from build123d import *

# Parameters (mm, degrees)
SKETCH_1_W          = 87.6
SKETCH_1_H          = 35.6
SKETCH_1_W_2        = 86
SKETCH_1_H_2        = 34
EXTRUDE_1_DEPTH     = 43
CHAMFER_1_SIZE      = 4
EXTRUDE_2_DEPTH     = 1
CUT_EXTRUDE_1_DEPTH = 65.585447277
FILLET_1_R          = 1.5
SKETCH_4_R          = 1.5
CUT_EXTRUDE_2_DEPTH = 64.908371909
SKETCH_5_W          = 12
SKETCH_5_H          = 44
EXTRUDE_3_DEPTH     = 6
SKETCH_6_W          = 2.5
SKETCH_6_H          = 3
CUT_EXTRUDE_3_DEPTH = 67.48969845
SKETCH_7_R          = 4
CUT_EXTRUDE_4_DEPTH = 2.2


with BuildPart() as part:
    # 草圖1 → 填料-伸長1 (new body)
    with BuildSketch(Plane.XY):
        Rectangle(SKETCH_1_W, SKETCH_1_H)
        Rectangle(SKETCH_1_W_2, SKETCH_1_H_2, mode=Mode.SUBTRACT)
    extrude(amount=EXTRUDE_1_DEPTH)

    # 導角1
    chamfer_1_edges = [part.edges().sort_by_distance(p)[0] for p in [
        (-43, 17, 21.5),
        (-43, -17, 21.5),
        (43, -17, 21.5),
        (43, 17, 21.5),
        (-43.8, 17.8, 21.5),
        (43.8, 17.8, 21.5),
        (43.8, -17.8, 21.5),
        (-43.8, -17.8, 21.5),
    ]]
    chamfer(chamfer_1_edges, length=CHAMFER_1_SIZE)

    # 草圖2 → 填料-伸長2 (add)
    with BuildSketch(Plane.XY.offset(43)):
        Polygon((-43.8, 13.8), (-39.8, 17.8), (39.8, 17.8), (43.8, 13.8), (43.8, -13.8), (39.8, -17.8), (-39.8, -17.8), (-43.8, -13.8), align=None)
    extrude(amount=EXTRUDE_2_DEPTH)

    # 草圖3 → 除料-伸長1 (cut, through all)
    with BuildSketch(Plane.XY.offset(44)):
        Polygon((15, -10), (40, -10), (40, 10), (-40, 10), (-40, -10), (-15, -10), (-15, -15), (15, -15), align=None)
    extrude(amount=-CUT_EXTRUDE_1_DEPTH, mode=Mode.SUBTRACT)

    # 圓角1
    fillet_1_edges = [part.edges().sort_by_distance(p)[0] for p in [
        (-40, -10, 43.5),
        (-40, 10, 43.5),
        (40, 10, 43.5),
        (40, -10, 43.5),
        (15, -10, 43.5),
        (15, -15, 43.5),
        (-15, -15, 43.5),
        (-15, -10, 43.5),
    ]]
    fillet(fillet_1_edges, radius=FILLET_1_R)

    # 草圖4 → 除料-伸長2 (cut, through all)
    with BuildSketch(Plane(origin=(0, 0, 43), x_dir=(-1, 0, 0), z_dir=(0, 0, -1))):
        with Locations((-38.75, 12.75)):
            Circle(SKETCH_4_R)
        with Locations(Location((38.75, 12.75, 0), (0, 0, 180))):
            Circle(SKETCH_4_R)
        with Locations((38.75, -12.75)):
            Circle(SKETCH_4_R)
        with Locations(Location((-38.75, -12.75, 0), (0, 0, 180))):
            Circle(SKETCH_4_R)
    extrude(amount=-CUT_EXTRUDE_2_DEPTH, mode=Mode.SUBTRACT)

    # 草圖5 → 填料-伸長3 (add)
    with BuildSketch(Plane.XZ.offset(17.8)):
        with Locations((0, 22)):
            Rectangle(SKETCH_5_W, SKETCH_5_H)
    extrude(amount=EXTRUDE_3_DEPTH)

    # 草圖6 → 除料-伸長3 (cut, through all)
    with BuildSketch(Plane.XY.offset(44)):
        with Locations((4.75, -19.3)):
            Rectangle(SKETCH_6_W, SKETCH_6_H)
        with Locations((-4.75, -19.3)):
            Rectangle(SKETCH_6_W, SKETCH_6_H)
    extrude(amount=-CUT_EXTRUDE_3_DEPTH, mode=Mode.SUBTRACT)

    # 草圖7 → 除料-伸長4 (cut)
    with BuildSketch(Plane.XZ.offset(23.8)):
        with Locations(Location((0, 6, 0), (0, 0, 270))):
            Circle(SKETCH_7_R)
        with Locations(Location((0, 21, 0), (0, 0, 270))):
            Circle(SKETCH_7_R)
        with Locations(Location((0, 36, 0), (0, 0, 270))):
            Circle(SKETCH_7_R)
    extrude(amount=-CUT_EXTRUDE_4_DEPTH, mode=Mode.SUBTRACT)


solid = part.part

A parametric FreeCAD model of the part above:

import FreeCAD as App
import Part
import Sketcher
from FreeCAD import Vector


def edges_at(feature, points):
    """Names of the edges that pass closest to the given points."""
    edges = feature.Shape.Edges
    near = lambda p: min(range(len(edges)), key=lambda i: edges[i].distToShape(Part.Vertex(*p))[0])
    return sorted({f"Edge{near(p) + 1}" for p in points})

doc = App.newDocument("Part")
body = doc.addObject("PartDesign::Body", "Body")

sketch1 = doc.addObject("Sketcher::SketchObject", "Sketch")
body.addObject(sketch1)
sketch1.AttachmentSupport = (doc.XY_Plane, [""])
sketch1.MapMode = "FlatFace"
sketch1.addGeometry(Part.LineSegment(Vector(-44, 18, 0), Vector(-44, -18, 0)), False)
sketch1.addGeometry(Part.LineSegment(Vector(-44, -18, 0), Vector(44, -18, 0)), False)
sketch1.addGeometry(Part.LineSegment(Vector(44, -18, 0), Vector(44, 18, 0)), False)
sketch1.addGeometry(Part.LineSegment(Vector(44, 18, 0), Vector(-44, 18, 0)), False)
sketch1.addGeometry(Part.LineSegment(Vector(43, -17, 0), Vector(-43, -17, 0)), False)
sketch1.addGeometry(Part.LineSegment(Vector(-43, -17, 0), Vector(-43, 17, 0)), False)
sketch1.addGeometry(Part.LineSegment(Vector(-43, 17, 0), Vector(43, 17, 0)), False)
sketch1.addGeometry(Part.LineSegment(Vector(43, 17, 0), Vector(43, -17, 0)), False)
sketch1.addConstraint(Sketcher.Constraint("Coincident", 0, 2, 1, 1))
sketch1.addConstraint(Sketcher.Constraint("Coincident", 1, 2, 2, 1))
sketch1.addConstraint(Sketcher.Constraint("Coincident", 2, 2, 3, 1))
sketch1.addConstraint(Sketcher.Constraint("Coincident", 3, 2, 0, 1))
sketch1.addConstraint(Sketcher.Constraint("Coincident", 4, 2, 5, 1))
sketch1.addConstraint(Sketcher.Constraint("Coincident", 5, 2, 6, 1))
sketch1.addConstraint(Sketcher.Constraint("Coincident", 6, 2, 7, 1))
sketch1.addConstraint(Sketcher.Constraint("Coincident", 7, 2, 4, 1))
sketch1.addConstraint(Sketcher.Constraint("Vertical", 0))
sketch1.addConstraint(Sketcher.Constraint("Horizontal", 1))
sketch1.addConstraint(Sketcher.Constraint("Vertical", 2))
sketch1.addConstraint(Sketcher.Constraint("Horizontal", 3))
sketch1.addConstraint(Sketcher.Constraint("Horizontal", 4))
sketch1.addConstraint(Sketcher.Constraint("Vertical", 5))
sketch1.addConstraint(Sketcher.Constraint("Horizontal", 6))
sketch1.addConstraint(Sketcher.Constraint("Vertical", 7))
sketch1.addConstraint(Sketcher.Constraint("Symmetric", 0, 2, 2, 2, -1, 1))
sketch1.addConstraint(Sketcher.Constraint("Symmetric", 4, 2, 6, 2, -1, 1))
sketch1.addConstraint(Sketcher.Constraint("DistanceX", 4, 2, 4, 1, 86.0))
sketch1.addConstraint(Sketcher.Constraint("DistanceY", 5, 1, 5, 2, 34.0))
sketch1.addConstraint(Sketcher.Constraint("DistanceX", 1, 1, 1, 2, 87.6))
sketch1.addConstraint(Sketcher.Constraint("DistanceY", 0, 2, 0, 1, 35.6))
pad1 = doc.addObject("PartDesign::Pad", "Pad")
body.addObject(pad1)
pad1.Profile = sketch1
pad1.Length = 43
doc.recompute()

chamfer = doc.addObject("PartDesign::Chamfer", "Chamfer")
body.addObject(chamfer)
chamfer.Base = (pad1, edges_at(pad1, [
    (-43, 17, 21.5),
    (-43, -17, 21.5),
    (43, -17, 21.5),
    (43, 17, 21.5),
    (-43.8, 17.8, 21.5),
    (43.8, 17.8, 21.5),
    (43.8, -17.8, 21.5),
    (-43.8, -17.8, 21.5),
]))
chamfer.Size = 4

sketch2 = doc.addObject("Sketcher::SketchObject", "Sketch001")
body.addObject(sketch2)
sketch2.AttachmentSupport = (doc.XY_Plane, [""])
sketch2.MapMode = "FlatFace"
sketch2.AttachmentOffset = App.Placement(Vector(0, 0, 43), App.Rotation())
sketch2.addGeometry(Part.LineSegment(Vector(-40, 18, 0), Vector(-44, 14, 0)), False)
sketch2.addGeometry(Part.LineSegment(Vector(-44, 14, 0), Vector(-44, -14, 0)), False)
sketch2.addGeometry(Part.LineSegment(Vector(-44, -14, 0), Vector(-40, -18, 0)), False)
sketch2.addGeometry(Part.LineSegment(Vector(-40, -18, 0), Vector(40, -18, 0)), False)
sketch2.addGeometry(Part.LineSegment(Vector(40, -18, 0), Vector(44, -14, 0)), False)
sketch2.addGeometry(Part.LineSegment(Vector(44, -14, 0), Vector(44, 14, 0)), False)
sketch2.addGeometry(Part.LineSegment(Vector(44, 14, 0), Vector(40, 18, 0)), False)
sketch2.addGeometry(Part.LineSegment(Vector(40, 18, 0), Vector(-40, 18, 0)), False)
sketch2.addConstraint(Sketcher.Constraint("Coincident", 0, 2, 1, 1))
sketch2.addConstraint(Sketcher.Constraint("Coincident", 1, 2, 2, 1))
sketch2.addConstraint(Sketcher.Constraint("Coincident", 2, 2, 3, 1))
sketch2.addConstraint(Sketcher.Constraint("Coincident", 3, 2, 4, 1))
sketch2.addConstraint(Sketcher.Constraint("Coincident", 4, 2, 5, 1))
sketch2.addConstraint(Sketcher.Constraint("Coincident", 5, 2, 6, 1))
sketch2.addConstraint(Sketcher.Constraint("Coincident", 6, 2, 7, 1))
sketch2.addConstraint(Sketcher.Constraint("Coincident", 7, 2, 0, 1))
sketch2.addConstraint(Sketcher.Constraint("Vertical", 1))
sketch2.addConstraint(Sketcher.Constraint("Horizontal", 3))
sketch2.addConstraint(Sketcher.Constraint("Vertical", 5))
sketch2.addConstraint(Sketcher.Constraint("Horizontal", 7))
sketch2.addConstraint(Sketcher.Constraint("Symmetric", 0, 2, 4, 2, -1, 1))
sketch2.addConstraint(Sketcher.Constraint("Symmetric", 2, 2, 6, 2, -1, 1))
sketch2.addConstraint(Sketcher.Constraint("Perpendicular", 0, 2))
sketch2.addConstraint(Sketcher.Constraint("Perpendicular", 2, 4))
sketch2.addConstraint(Sketcher.Constraint("Perpendicular", 4, 6))
sketch2.addConstraint(Sketcher.Constraint("Horizontal", 1, 2, 4, 2))
sketch2.addConstraint(Sketcher.Constraint("Vertical", 3, 2, 6, 2))
sketch2.addConstraint(Sketcher.Constraint("DistanceX", 3, 1, 3, 2, 79.6))
sketch2.addConstraint(Sketcher.Constraint("DistanceY", 1, 2, 1, 1, 27.6))
sketch2.addConstraint(Sketcher.Constraint("DistanceX", 1, 2, 2, 2, 4.0))
pad2 = doc.addObject("PartDesign::Pad", "Pad001")
body.addObject(pad2)
pad2.Profile = sketch2
pad2.Length = 1

sketch3 = doc.addObject("Sketcher::SketchObject", "Sketch002")
body.addObject(sketch3)
sketch3.AttachmentSupport = (doc.XY_Plane, [""])
sketch3.MapMode = "FlatFace"
sketch3.AttachmentOffset = App.Placement(Vector(0, 0, 44), App.Rotation())
sketch3.addGeometry(Part.LineSegment(Vector(15, -10, 0), Vector(40, -10, 0)), False)
sketch3.addGeometry(Part.LineSegment(Vector(40, -10, 0), Vector(40, 10, 0)), False)
sketch3.addGeometry(Part.LineSegment(Vector(40, 10, 0), Vector(-40, 10, 0)), False)
sketch3.addGeometry(Part.LineSegment(Vector(-40, 10, 0), Vector(-40, -10, 0)), False)
sketch3.addGeometry(Part.LineSegment(Vector(-40, -10, 0), Vector(-15, -10, 0)), False)
sketch3.addGeometry(Part.LineSegment(Vector(-15, -10, 0), Vector(-15, -15, 0)), False)
sketch3.addGeometry(Part.LineSegment(Vector(-15, -15, 0), Vector(15, -15, 0)), False)
sketch3.addGeometry(Part.LineSegment(Vector(15, -15, 0), Vector(15, -10, 0)), False)
sketch3.addConstraint(Sketcher.Constraint("Coincident", 0, 2, 1, 1))
sketch3.addConstraint(Sketcher.Constraint("Coincident", 1, 2, 2, 1))
sketch3.addConstraint(Sketcher.Constraint("Coincident", 2, 2, 3, 1))
sketch3.addConstraint(Sketcher.Constraint("Coincident", 3, 2, 4, 1))
sketch3.addConstraint(Sketcher.Constraint("Coincident", 4, 2, 5, 1))
sketch3.addConstraint(Sketcher.Constraint("Coincident", 5, 2, 6, 1))
sketch3.addConstraint(Sketcher.Constraint("Coincident", 6, 2, 7, 1))
sketch3.addConstraint(Sketcher.Constraint("Coincident", 7, 2, 0, 1))
sketch3.addConstraint(Sketcher.Constraint("Horizontal", 0))
sketch3.addConstraint(Sketcher.Constraint("Vertical", 1))
sketch3.addConstraint(Sketcher.Constraint("Horizontal", 2))
sketch3.addConstraint(Sketcher.Constraint("Vertical", 3))
sketch3.addConstraint(Sketcher.Constraint("Horizontal", 4))
sketch3.addConstraint(Sketcher.Constraint("Vertical", 5))
sketch3.addConstraint(Sketcher.Constraint("Horizontal", 6))
sketch3.addConstraint(Sketcher.Constraint("Vertical", 7))
sketch3.addConstraint(Sketcher.Constraint("Symmetric", 0, 2, 2, 2, -1, 1))
sketch3.addConstraint(Sketcher.Constraint("Symmetric", 4, 2, 7, 2, -2))
sketch3.addConstraint(Sketcher.Constraint("DistanceX", 0, 1, 0, 2, 25.0))
sketch3.addConstraint(Sketcher.Constraint("DistanceX", 2, 2, 2, 1, 80.0))
sketch3.addConstraint(Sketcher.Constraint("DistanceY", 1, 1, 1, 2, 20.0))
sketch3.addConstraint(Sketcher.Constraint("DistanceY", 5, 2, 5, 1, 5.0))
pocket1 = doc.addObject("PartDesign::Pocket", "Pocket")
body.addObject(pocket1)
pocket1.Profile = sketch3
pocket1.Type = "ThroughAll"
doc.recompute()

fillet = doc.addObject("PartDesign::Fillet", "Fillet")
body.addObject(fillet)
fillet.Base = (pocket1, edges_at(pocket1, [
    (-40, -10, 43.5),
    (-40, 10, 43.5),
    (40, 10, 43.5),
    (40, -10, 43.5),
    (15, -10, 43.5),
    (15, -15, 43.5),
    (-15, -15, 43.5),
    (-15, -10, 43.5),
]))
fillet.Radius = 1.5

sketch4 = doc.addObject("Sketcher::SketchObject", "Sketch003")
body.addObject(sketch4)
sketch4.AttachmentSupport = (doc.XY_Plane, [""])
sketch4.MapMode = "FlatFace"
sketch4.AttachmentOffset = App.Placement(Vector(0, 0, 43), App.Rotation())
sketch4.addGeometry(Part.Circle(Vector(38.8, 12.8, 0), Vector(0, 0, 1), 1.5), False)
sketch4.addGeometry(Part.Circle(Vector(-38.8, 12.8, 0), Vector(0, 0, 1), 1.5), False)
sketch4.addGeometry(Part.Circle(Vector(-38.8, -12.8, 0), Vector(0, 0, 1), 1.5), False)
sketch4.addGeometry(Part.Circle(Vector(38.8, -12.8, 0), Vector(0, 0, 1), 1.5), False)
sketch4.addConstraint(Sketcher.Constraint("Equal", 0, 1))
sketch4.addConstraint(Sketcher.Constraint("Equal", 1, 2))
sketch4.addConstraint(Sketcher.Constraint("Equal", 2, 3))
sketch4.addConstraint(Sketcher.Constraint("Symmetric", 0, 3, 2, 3, -1, 1))
sketch4.addConstraint(Sketcher.Constraint("Symmetric", 1, 3, 3, 3, -1, 1))
sketch4.addConstraint(Sketcher.Constraint("Symmetric", 0, 3, 1, 3, -2))
sketch4.addConstraint(Sketcher.Constraint("Diameter", 0, 3.0))
sketch4.addConstraint(Sketcher.Constraint("DistanceX", 1, 3, 0, 3, 77.5))
sketch4.addConstraint(Sketcher.Constraint("DistanceY", 2, 3, 1, 3, 25.5))
pocket2 = doc.addObject("PartDesign::Pocket", "Pocket001")
body.addObject(pocket2)
pocket2.Profile = sketch4
pocket2.Type = "ThroughAll"
pocket2.Reversed = True

sketch5 = doc.addObject("Sketcher::SketchObject", "Sketch004")
body.addObject(sketch5)
sketch5.AttachmentSupport = (doc.XZ_Plane, [""])
sketch5.MapMode = "FlatFace"
sketch5.AttachmentOffset = App.Placement(Vector(0, 0, 17.8), App.Rotation())
sketch5.addGeometry(Part.LineSegment(Vector(-6, 44, 0), Vector(-6, 0, 0)), False)
sketch5.addGeometry(Part.LineSegment(Vector(-6, 0, 0), Vector(6, 0, 0)), False)
sketch5.addGeometry(Part.LineSegment(Vector(6, 0, 0), Vector(6, 44, 0)), False)
sketch5.addGeometry(Part.LineSegment(Vector(6, 44, 0), Vector(-6, 44, 0)), False)
sketch5.addConstraint(Sketcher.Constraint("Coincident", 0, 2, 1, 1))
sketch5.addConstraint(Sketcher.Constraint("Coincident", 1, 2, 2, 1))
sketch5.addConstraint(Sketcher.Constraint("Coincident", 2, 2, 3, 1))
sketch5.addConstraint(Sketcher.Constraint("Coincident", 3, 2, 0, 1))
sketch5.addConstraint(Sketcher.Constraint("Vertical", 0))
sketch5.addConstraint(Sketcher.Constraint("Horizontal", 1))
sketch5.addConstraint(Sketcher.Constraint("Vertical", 2))
sketch5.addConstraint(Sketcher.Constraint("Horizontal", 3))
sketch5.addConstraint(Sketcher.Constraint("Symmetric", 0, 2, 1, 2, -1, 1))
sketch5.addConstraint(Sketcher.Constraint("DistanceX", 1, 1, 1, 2, 12.0))
sketch5.addConstraint(Sketcher.Constraint("DistanceY", 0, 2, 0, 1, 44.0))
pad3 = doc.addObject("PartDesign::Pad", "Pad002")
body.addObject(pad3)
pad3.Profile = sketch5
pad3.Length = 6

sketch6 = doc.addObject("Sketcher::SketchObject", "Sketch005")
body.addObject(sketch6)
sketch6.AttachmentSupport = (doc.XY_Plane, [""])
sketch6.MapMode = "FlatFace"
sketch6.AttachmentOffset = App.Placement(Vector(0, 0, 44), App.Rotation())
sketch6.addGeometry(Part.LineSegment(Vector(3.5, -17.8, 0), Vector(3.5, -20.8, 0)), False)
sketch6.addGeometry(Part.LineSegment(Vector(3.5, -20.8, 0), Vector(6, -20.8, 0)), False)
sketch6.addGeometry(Part.LineSegment(Vector(6, -20.8, 0), Vector(6, -17.8, 0)), False)
sketch6.addGeometry(Part.LineSegment(Vector(6, -17.8, 0), Vector(3.5, -17.8, 0)), False)
sketch6.addGeometry(Part.LineSegment(Vector(-6, -17.8, 0), Vector(-6, -20.8, 0)), False)
sketch6.addGeometry(Part.LineSegment(Vector(-6, -20.8, 0), Vector(-3.5, -20.8, 0)), False)
sketch6.addGeometry(Part.LineSegment(Vector(-3.5, -20.8, 0), Vector(-3.5, -17.8, 0)), False)
sketch6.addGeometry(Part.LineSegment(Vector(-3.5, -17.8, 0), Vector(-6, -17.8, 0)), False)
sketch6.addConstraint(Sketcher.Constraint("Coincident", 0, 2, 1, 1))
sketch6.addConstraint(Sketcher.Constraint("Coincident", 1, 2, 2, 1))
sketch6.addConstraint(Sketcher.Constraint("Coincident", 2, 2, 3, 1))
sketch6.addConstraint(Sketcher.Constraint("Coincident", 3, 2, 0, 1))
sketch6.addConstraint(Sketcher.Constraint("Coincident", 4, 2, 5, 1))
sketch6.addConstraint(Sketcher.Constraint("Coincident", 5, 2, 6, 1))
sketch6.addConstraint(Sketcher.Constraint("Coincident", 6, 2, 7, 1))
sketch6.addConstraint(Sketcher.Constraint("Coincident", 7, 2, 4, 1))
sketch6.addConstraint(Sketcher.Constraint("Vertical", 0))
sketch6.addConstraint(Sketcher.Constraint("Horizontal", 1))
sketch6.addConstraint(Sketcher.Constraint("Vertical", 2))
sketch6.addConstraint(Sketcher.Constraint("Horizontal", 3))
sketch6.addConstraint(Sketcher.Constraint("Vertical", 4))
sketch6.addConstraint(Sketcher.Constraint("Horizontal", 5))
sketch6.addConstraint(Sketcher.Constraint("Vertical", 6))
sketch6.addConstraint(Sketcher.Constraint("Horizontal", 7))
sketch6.addConstraint(Sketcher.Constraint("Symmetric", 1, 2, 4, 2, -2))
sketch6.addConstraint(Sketcher.Constraint("Symmetric", 3, 2, 6, 2, -2))
sketch6.addConstraint(Sketcher.Constraint("DistanceY", 0, 2, 0, 1, 3.0))
sketch6.addConstraint(Sketcher.Constraint("DistanceX", 1, 1, 1, 2, 2.5))
sketch6.addConstraint(Sketcher.Constraint("DistanceX", -1, 1, 1, 2, 6.0))
sketch6.addConstraint(Sketcher.Constraint("DistanceY", 0, 2, -1, 1, 20.8))
pocket3 = doc.addObject("PartDesign::Pocket", "Pocket002")
body.addObject(pocket3)
pocket3.Profile = sketch6
pocket3.Type = "ThroughAll"

sketch7 = doc.addObject("Sketcher::SketchObject", "Sketch006")
body.addObject(sketch7)
sketch7.AttachmentSupport = (doc.XZ_Plane, [""])
sketch7.MapMode = "FlatFace"
sketch7.AttachmentOffset = App.Placement(Vector(0, 0, 23.8), App.Rotation())
sketch7.addGeometry(Part.Circle(Vector(0, 6, 0), Vector(0, 0, 1), 4), False)
sketch7.addGeometry(Part.Circle(Vector(0, 21, 0), Vector(0, 0, 1), 4), False)
sketch7.addGeometry(Part.Circle(Vector(0, 36, 0), Vector(0, 0, 1), 4), False)
sketch7.addConstraint(Sketcher.Constraint("Equal", 0, 1))
sketch7.addConstraint(Sketcher.Constraint("Equal", 1, 2))
sketch7.addConstraint(Sketcher.Constraint("PointOnObject", 0, 3, -2))
sketch7.addConstraint(Sketcher.Constraint("PointOnObject", 1, 3, -2))
sketch7.addConstraint(Sketcher.Constraint("PointOnObject", 2, 3, -2))
sketch7.addConstraint(Sketcher.Constraint("Diameter", 0, 8.0))
sketch7.addConstraint(Sketcher.Constraint("DistanceY", -1, 1, 0, 3, 6.0))
sketch7.addConstraint(Sketcher.Constraint("DistanceY", -1, 1, 1, 3, 21.0))
sketch7.addConstraint(Sketcher.Constraint("DistanceY", -1, 1, 2, 3, 36.0))
pocket4 = doc.addObject("PartDesign::Pocket", "Pocket003")
body.addObject(pocket4)
pocket4.Profile = sketch7
pocket4.Length = 2.2

doc.recompute()
